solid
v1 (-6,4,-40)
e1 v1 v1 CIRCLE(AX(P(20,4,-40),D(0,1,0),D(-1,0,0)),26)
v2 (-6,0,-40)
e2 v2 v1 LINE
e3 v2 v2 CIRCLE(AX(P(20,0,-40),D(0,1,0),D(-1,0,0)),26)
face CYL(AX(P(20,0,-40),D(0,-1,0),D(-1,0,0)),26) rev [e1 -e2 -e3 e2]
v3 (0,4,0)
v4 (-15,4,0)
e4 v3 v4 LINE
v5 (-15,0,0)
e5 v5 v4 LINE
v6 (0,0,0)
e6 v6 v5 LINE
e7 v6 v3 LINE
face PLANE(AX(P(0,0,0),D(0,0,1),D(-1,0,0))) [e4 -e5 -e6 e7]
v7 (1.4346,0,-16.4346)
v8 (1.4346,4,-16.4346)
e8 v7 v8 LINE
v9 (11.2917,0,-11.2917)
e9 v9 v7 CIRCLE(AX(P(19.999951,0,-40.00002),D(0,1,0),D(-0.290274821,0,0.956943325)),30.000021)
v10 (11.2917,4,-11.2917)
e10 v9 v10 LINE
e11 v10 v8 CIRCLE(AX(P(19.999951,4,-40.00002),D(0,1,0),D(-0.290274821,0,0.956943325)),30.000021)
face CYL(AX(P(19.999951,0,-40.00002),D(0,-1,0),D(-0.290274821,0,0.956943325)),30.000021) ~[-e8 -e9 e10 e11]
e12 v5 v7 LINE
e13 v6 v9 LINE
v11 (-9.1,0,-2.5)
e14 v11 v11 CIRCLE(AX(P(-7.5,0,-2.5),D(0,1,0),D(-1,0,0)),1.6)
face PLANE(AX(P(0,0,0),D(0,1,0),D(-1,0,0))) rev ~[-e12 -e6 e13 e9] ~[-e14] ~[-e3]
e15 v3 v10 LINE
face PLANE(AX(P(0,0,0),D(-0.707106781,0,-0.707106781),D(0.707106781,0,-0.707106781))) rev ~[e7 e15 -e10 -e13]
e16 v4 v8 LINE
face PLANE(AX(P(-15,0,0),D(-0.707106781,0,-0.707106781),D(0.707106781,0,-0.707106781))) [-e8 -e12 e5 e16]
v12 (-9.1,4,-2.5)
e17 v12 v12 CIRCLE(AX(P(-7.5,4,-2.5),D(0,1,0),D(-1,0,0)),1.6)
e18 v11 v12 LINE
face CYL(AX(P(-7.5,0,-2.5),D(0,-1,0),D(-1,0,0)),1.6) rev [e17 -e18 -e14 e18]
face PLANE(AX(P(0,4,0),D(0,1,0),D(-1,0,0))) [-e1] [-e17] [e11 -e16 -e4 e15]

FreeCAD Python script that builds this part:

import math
import FreeCAD as App
import Part
import Sketcher
from FreeCAD import Vector
Q = App.Units.Quantity

doc = App.newDocument("Part")
body = doc.addObject("PartDesign::Body", "Body")

# Sketch on XZ plane
sketch1 = doc.addObject("Sketcher::SketchObject", "Sketch")
body.addObject(sketch1)
sketch1.AttachmentSupport = (doc.XZ_Plane, [""])
sketch1.MapMode = "FlatFace"
sketch1.addGeometry([
    Part.LineSegment(Vector(-15, 0, 0), Vector(0, 0, 0)),  # 0
    Part.LineSegment(Vector(0, 0, 0), Vector(11.3, -11.3, 0)),  # 1
    Part.ArcOfCircle(Part.Circle(Vector(20, -40, 0), Vector(0, 0, 1), 30), math.radians(128), math.radians(467)),  # 2
    Part.LineSegment(Vector(1.4, -16.4, 0), Vector(-15, 0, 0)),  # 3
    Part.Circle(Vector(20, -40, 0), Vector(0, 0, 1), 26),  # 4
    Part.Circle(Vector(-7.5, -2.5, 0), Vector(0, 0, 1), 1.6),  # 5
], False)
sketch1.addConstraint([
    Sketcher.Constraint("Coincident", 0, 2, 1, 1),
    Sketcher.Constraint("Coincident", 1, 2, 2, 2),
    Sketcher.Constraint("Coincident", 2, 1, 3, 1),
    Sketcher.Constraint("Coincident", 3, 2, 0, 1),
    Sketcher.Constraint("Horizontal", 0),
    Sketcher.Constraint("Coincident", 0, 2, -1, 1),
    Sketcher.Constraint("Coincident", 4, 3, 2, 3),
    Sketcher.Constraint("Parallel", 1, 3),
    Sketcher.Constraint("Diameter", 4, Q("52 mm")),
    Sketcher.Constraint("Radius", 2, Q("30 mm")),
    Sketcher.Constraint("Diameter", 5, Q("3.2 mm")),
    Sketcher.Constraint("DistanceX", 0, 1, 0, 2, Q("15 mm")),
    Sketcher.Constraint("Angle", 3, Q("135 deg")),
    Sketcher.Constraint("DistanceX", -1, 1, 2, 3, Q("20 mm")),
    Sketcher.Constraint("DistanceY", 2, 3, -1, 1, Q("40 mm")),
    Sketcher.Constraint("DistanceX", 5, 3, -1, 1, Q("7.5 mm")),
    Sketcher.Constraint("DistanceY", 5, 3, -1, 1, Q("2.5 mm")),
])
pad1 = doc.addObject("PartDesign::Pad", "Pad")
body.addObject(pad1)
pad1.Profile = sketch1
pad1.Length = 4
pad1.Reversed = True

doc.recompute()
